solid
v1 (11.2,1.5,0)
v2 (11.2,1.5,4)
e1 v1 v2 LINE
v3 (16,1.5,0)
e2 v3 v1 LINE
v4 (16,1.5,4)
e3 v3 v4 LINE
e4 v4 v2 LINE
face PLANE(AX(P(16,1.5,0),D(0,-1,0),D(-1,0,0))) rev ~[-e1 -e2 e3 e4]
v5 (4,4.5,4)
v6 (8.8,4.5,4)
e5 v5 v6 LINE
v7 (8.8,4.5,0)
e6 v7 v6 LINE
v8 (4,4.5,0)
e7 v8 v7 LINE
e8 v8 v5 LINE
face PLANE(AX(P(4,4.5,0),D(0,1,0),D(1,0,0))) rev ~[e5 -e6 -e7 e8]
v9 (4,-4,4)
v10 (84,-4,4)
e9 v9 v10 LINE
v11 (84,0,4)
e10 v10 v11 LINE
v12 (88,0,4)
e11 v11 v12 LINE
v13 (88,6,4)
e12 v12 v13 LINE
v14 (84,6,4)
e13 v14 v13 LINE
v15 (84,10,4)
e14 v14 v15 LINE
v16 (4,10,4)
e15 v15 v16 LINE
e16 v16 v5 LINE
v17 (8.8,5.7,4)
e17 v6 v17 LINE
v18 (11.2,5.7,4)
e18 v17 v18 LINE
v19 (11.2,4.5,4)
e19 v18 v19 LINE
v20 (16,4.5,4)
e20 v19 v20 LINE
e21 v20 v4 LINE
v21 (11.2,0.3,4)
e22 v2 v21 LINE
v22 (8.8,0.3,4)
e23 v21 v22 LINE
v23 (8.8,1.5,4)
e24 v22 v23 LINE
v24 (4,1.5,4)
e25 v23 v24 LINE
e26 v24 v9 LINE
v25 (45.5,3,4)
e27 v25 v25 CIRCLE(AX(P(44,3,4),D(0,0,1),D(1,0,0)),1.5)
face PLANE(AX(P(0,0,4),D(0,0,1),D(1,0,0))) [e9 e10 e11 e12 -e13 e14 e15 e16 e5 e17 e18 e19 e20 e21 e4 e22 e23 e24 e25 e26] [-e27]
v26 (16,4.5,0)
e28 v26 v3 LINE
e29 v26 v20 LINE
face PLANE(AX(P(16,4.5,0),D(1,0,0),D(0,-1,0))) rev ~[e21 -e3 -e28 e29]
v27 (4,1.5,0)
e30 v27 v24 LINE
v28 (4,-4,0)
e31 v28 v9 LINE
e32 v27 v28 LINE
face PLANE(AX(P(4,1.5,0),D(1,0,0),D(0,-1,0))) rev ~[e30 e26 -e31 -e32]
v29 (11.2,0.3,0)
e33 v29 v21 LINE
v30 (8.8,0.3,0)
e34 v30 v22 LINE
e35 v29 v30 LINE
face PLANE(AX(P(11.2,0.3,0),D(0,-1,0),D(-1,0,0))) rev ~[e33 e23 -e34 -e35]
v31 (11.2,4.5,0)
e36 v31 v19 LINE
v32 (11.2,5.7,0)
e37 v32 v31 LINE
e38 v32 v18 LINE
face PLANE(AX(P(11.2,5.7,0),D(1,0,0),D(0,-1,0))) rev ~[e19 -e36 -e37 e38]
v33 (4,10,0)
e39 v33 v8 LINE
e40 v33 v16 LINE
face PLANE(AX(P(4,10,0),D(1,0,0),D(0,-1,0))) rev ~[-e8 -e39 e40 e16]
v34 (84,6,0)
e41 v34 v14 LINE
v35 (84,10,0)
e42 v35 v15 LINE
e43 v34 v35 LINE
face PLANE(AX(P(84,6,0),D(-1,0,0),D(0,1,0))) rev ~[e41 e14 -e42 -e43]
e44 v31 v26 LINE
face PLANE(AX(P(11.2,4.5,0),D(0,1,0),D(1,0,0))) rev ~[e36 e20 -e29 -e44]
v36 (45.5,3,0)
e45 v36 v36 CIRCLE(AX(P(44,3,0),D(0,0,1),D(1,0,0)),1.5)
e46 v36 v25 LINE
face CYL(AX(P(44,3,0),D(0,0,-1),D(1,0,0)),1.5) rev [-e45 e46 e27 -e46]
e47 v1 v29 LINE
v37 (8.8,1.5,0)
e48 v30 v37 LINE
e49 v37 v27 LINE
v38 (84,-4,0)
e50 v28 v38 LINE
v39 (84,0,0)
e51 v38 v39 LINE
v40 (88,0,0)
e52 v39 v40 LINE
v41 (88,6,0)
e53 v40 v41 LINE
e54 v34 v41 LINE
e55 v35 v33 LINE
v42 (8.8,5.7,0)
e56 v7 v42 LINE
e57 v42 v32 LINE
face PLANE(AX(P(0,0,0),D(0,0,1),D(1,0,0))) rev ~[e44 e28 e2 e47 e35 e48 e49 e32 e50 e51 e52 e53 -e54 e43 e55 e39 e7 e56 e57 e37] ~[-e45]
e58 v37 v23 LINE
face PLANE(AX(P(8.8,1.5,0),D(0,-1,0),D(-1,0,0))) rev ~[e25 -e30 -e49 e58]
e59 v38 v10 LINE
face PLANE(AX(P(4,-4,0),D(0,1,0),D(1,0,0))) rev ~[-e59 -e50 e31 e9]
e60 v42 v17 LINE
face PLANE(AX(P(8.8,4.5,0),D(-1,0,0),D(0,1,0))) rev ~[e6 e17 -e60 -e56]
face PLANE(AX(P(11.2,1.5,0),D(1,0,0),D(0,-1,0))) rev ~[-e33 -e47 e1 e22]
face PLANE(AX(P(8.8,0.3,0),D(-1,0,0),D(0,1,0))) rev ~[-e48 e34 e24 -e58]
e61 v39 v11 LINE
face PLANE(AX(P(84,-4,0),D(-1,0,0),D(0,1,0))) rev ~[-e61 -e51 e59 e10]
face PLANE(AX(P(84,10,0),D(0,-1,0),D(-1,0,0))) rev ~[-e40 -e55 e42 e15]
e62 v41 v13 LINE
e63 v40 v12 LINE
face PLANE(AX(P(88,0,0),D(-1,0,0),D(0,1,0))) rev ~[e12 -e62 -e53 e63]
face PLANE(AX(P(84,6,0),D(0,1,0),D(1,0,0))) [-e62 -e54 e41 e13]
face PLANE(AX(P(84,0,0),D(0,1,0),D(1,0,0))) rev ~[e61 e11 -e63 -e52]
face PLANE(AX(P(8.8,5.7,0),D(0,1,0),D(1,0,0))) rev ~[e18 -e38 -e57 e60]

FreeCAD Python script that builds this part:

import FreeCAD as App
import Part
import Sketcher
from FreeCAD import Vector


def add_polygon(sketch, points):
    """Adds a closed chain of lines whose ends are joined by coincident constraints."""
    first, n = sketch.GeometryCount, len(points)
    for a, b in zip(points, points[1:] + points[:1]):
        sketch.addGeometry(Part.LineSegment(App.Vector(*a, 0), App.Vector(*b, 0)), False)
    for i in range(n):
        sketch.addConstraint(Sketcher.Constraint("Coincident", first + i, 2, first + (i + 1) % n, 1))

doc = App.newDocument("Part")
body = doc.addObject("PartDesign::Body", "Body")

# Sketch on XY plane
sketch1 = body.newObject("Sketcher::SketchObject", "Sketch")
sketch1.AttachmentSupport = (doc.getObject("XY_Plane"), [""])
sketch1.MapMode = "FlatFace"
add_polygon(sketch1, [(84, 0), (88, 0), (88, 6), (84, 6), (84, 10), (4, 10), (4, 4.5), (8.8, 4.5), (8.8, 5.7), (11.2, 5.7), (11.2, 4.5), (16, 4.5), (16, 1.5), (11.2, 1.5), (11.2, 0.3), (8.8, 0.3), (8.8, 1.5), (4, 1.5), (4, -4), (84, -4)])  # lines 0-19
sketch1.addGeometry(Part.Circle(Vector(44, 3, 0), Vector(0, 0, 1), 1.5), False)  # 20
sketch1.addConstraint(Sketcher.Constraint("Horizontal", 0))
sketch1.addConstraint(Sketcher.Constraint("Vertical", 1))
sketch1.addConstraint(Sketcher.Constraint("Horizontal", 2))
sketch1.addConstraint(Sketcher.Constraint("Vertical", 3))
sketch1.addConstraint(Sketcher.Constraint("Horizontal", 4))
sketch1.addConstraint(Sketcher.Constraint("Vertical", 5))
sketch1.addConstraint(Sketcher.Constraint("Horizontal", 6))
sketch1.addConstraint(Sketcher.Constraint("Vertical", 7))
sketch1.addConstraint(Sketcher.Constraint("Horizontal", 8))
sketch1.addConstraint(Sketcher.Constraint("Vertical", 9))
sketch1.addConstraint(Sketcher.Constraint("Horizontal", 10))
sketch1.addConstraint(Sketcher.Constraint("Vertical", 11))
sketch1.addConstraint(Sketcher.Constraint("Horizontal", 12))
sketch1.addConstraint(Sketcher.Constraint("Vertical", 13))
sketch1.addConstraint(Sketcher.Constraint("Horizontal", 14))
sketch1.addConstraint(Sketcher.Constraint("Vertical", 15))
sketch1.addConstraint(Sketcher.Constraint("Horizontal", 16))
sketch1.addConstraint(Sketcher.Constraint("Vertical", 17))
sketch1.addConstraint(Sketcher.Constraint("Horizontal", 18))
sketch1.addConstraint(Sketcher.Constraint("Vertical", 19))
sketch1.addConstraint(Sketcher.Constraint("PointOnObject", 0, 2, -1))
sketch1.addConstraint(Sketcher.Constraint("Horizontal", 6, 2, 9, 2))
sketch1.addConstraint(Sketcher.Constraint("Horizontal", 12, 2, 15, 2))
sketch1.addConstraint(Sketcher.Constraint("Vertical", 9, 2, 12, 2))
sketch1.addConstraint(Sketcher.Constraint("Vertical", 7, 2, 14, 2))
sketch1.addConstraint(Sketcher.Constraint("Vertical", 5, 2, 16, 2))
sketch1.addConstraint(Sketcher.Constraint("Vertical", 3, 2, 18, 2))
sketch1.addConstraint(Sketcher.Constraint("Equal", 6, 10))
sketch1.addConstraint(Sketcher.Constraint("Equal", 2, 3))
sketch1.addConstraint(Sketcher.Constraint("Equal", 9, 13))
sketch1.addConstraint(Sketcher.Constraint("Equal", 5, 17))
sketch1.addConstraint(Sketcher.Constraint("Equal", 3, 19))
sketch1.addConstraint(Sketcher.Constraint("Diameter", 20, 3.0))
sketch1.addConstraint(Sketcher.Constraint("DistanceX", 0, 1, 0, 2, 4.0))
sketch1.addConstraint(Sketcher.Constraint("DistanceY", 11, 2, 11, 1, 3.0))
sketch1.addConstraint(Sketcher.Constraint("DistanceX", 8, 1, 8, 2, 2.4))
sketch1.addConstraint(Sketcher.Constraint("DistanceY", -1, 1, 20, 3, 3.0))
sketch1.addConstraint(Sketcher.Constraint("DistanceX", -1, 1, 4, 2, 4.0))
sketch1.addConstraint(Sketcher.Constraint("DistanceY", 20, 3, 1, 2, 3.0))
sketch1.addConstraint(Sketcher.Constraint("DistanceX", 5, 2, 10, 2, 12.0))
sketch1.addConstraint(Sketcher.Constraint("DistanceY", 13, 2, 8, 2, 5.4))
sketch1.addConstraint(Sketcher.Constraint("DistanceX", 4, 2, 4, 1, 80.0))
sketch1.addConstraint(Sketcher.Constraint("DistanceX", -1, 1, 20, 3, 44.0))
pad1 = body.newObject("PartDesign::Pad", "Pad")
pad1.Profile = sketch1
pad1.Length = 4

doc.recompute()
